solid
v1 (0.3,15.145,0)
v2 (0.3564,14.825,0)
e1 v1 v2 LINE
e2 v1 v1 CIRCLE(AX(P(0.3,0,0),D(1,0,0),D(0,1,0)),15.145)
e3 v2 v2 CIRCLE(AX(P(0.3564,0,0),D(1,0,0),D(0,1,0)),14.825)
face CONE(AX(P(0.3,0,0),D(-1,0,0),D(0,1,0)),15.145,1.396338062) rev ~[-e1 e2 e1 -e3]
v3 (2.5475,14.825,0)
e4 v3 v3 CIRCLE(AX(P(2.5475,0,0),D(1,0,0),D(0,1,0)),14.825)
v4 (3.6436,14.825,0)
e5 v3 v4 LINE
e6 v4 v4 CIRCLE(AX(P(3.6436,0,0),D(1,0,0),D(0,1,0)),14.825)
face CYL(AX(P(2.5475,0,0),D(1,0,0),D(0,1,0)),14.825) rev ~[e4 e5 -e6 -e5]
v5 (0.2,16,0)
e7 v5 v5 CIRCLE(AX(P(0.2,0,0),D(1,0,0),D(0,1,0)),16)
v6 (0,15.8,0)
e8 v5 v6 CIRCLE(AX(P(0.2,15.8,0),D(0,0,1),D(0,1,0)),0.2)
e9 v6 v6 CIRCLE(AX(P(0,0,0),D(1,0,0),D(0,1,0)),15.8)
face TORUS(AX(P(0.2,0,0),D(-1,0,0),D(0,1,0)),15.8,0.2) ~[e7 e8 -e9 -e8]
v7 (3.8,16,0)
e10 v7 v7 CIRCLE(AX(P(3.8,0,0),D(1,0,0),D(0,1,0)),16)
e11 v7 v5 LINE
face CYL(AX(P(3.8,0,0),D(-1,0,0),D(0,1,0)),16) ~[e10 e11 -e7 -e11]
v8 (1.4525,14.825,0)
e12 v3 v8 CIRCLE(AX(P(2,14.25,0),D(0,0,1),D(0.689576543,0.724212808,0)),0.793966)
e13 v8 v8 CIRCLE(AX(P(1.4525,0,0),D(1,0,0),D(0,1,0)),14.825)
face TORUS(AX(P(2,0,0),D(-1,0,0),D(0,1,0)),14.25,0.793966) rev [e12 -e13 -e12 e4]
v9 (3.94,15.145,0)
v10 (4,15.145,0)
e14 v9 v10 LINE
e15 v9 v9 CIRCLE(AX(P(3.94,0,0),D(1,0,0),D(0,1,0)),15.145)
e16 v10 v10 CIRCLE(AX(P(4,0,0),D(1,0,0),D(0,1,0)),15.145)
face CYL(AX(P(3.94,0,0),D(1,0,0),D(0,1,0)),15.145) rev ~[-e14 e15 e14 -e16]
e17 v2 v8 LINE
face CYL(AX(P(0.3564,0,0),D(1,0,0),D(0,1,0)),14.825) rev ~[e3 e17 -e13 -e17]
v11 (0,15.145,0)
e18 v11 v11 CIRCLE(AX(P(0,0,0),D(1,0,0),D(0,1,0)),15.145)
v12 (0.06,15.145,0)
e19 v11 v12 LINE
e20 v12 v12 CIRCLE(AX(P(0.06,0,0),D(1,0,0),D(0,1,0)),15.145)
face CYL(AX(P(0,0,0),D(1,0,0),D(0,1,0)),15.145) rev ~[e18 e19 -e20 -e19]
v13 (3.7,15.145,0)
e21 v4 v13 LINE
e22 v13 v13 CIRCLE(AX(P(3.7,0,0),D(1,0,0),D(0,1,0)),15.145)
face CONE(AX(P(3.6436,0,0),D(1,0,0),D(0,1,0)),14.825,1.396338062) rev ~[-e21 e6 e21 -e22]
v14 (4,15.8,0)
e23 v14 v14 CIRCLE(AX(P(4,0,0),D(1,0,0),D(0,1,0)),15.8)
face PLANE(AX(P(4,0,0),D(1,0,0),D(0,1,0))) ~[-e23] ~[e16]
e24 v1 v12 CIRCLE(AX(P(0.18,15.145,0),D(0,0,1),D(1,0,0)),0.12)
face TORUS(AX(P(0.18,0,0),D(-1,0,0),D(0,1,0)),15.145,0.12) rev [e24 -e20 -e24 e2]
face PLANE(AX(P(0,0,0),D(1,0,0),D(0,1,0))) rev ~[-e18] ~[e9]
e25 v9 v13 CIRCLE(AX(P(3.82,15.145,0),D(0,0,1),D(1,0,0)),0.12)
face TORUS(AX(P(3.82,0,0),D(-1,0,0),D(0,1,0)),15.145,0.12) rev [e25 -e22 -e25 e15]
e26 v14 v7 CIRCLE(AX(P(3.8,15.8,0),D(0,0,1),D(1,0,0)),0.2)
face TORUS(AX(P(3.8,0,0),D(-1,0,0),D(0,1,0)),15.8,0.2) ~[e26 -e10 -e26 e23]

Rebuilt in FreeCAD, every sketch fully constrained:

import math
import FreeCAD as App
import Part
import Sketcher
from FreeCAD import Vector

doc = App.newDocument("Part")
body = doc.addObject("PartDesign::Body", "Body")

# Sketch on XY plane
sketch1 = body.newObject("Sketcher::SketchObject", "Sketch")
sketch1.AttachmentSupport = (doc.getObject("XY_Plane"), [""])
sketch1.MapMode = "FlatFace"
sketch1.addGeometry(Part.LineSegment(Vector(0, 15.8, 0), Vector(0, 15.145, 0)), False)
sketch1.addGeometry(Part.LineSegment(Vector(0, 15.145, 0), Vector(0.06, 15.145, 0)), False)
sketch1.addGeometry(Part.ArcOfCircle(Part.Circle(Vector(0.18, 15.145, 0), Vector(0, 0, 1), 0.12), math.radians(0), math.radians(180)), False)
sketch1.addGeometry(Part.LineSegment(Vector(0.3, 15.145, 0), Vector(0.3564, 14.825, 0)), False)
sketch1.addGeometry(Part.LineSegment(Vector(0.3564, 14.825, 0), Vector(1.4525, 14.825, 0)), False)
sketch1.addGeometry(Part.ArcOfCircle(Part.Circle(Vector(2, 14.25, 0), Vector(0, 0, 1), 0.793966), math.radians(46.403402), math.radians(133.596598)), False)
sketch1.addGeometry(Part.LineSegment(Vector(2.5475, 14.825, 0), Vector(3.6436, 14.825, 0)), False)
sketch1.addGeometry(Part.LineSegment(Vector(3.6436, 14.825, 0), Vector(3.7, 15.145, 0)), False)
sketch1.addGeometry(Part.ArcOfCircle(Part.Circle(Vector(3.82, 15.145, 0), Vector(0, 0, 1), 0.12), math.radians(0), math.radians(180)), False)
sketch1.addGeometry(Part.LineSegment(Vector(3.94, 15.145, 0), Vector(4, 15.145, 0)), False)
sketch1.addGeometry(Part.LineSegment(Vector(4, 15.145, 0), Vector(4, 15.8, 0)), False)
sketch1.addGeometry(Part.ArcOfCircle(Part.Circle(Vector(3.8, 15.8, 0), Vector(0, 0, 1), 0.2), math.radians(0), math.radians(90)), False)
sketch1.addGeometry(Part.LineSegment(Vector(3.8, 16, 0), Vector(0.2, 16, 0)), False)
sketch1.addGeometry(Part.ArcOfCircle(Part.Circle(Vector(0.2, 15.8, 0), Vector(0, 0, 1), 0.2), math.radians(90), math.radians(180)), False)
sketch1.addConstraint(Sketcher.Constraint("Coincident", 0, 2, 1, 1))
sketch1.addConstraint(Sketcher.Constraint("Coincident", 1, 2, 2, 2))
sketch1.addConstraint(Sketcher.Constraint("Coincident", 2, 1, 3, 1))
sketch1.addConstraint(Sketcher.Constraint("Coincident", 3, 2, 4, 1))
sketch1.addConstraint(Sketcher.Constraint("Coincident", 4, 2, 5, 2))
sketch1.addConstraint(Sketcher.Constraint("Coincident", 5, 1, 6, 1))
sketch1.addConstraint(Sketcher.Constraint("Coincident", 6, 2, 7, 1))
sketch1.addConstraint(Sketcher.Constraint("Coincident", 7, 2, 8, 2))
sketch1.addConstraint(Sketcher.Constraint("Coincident", 8, 1, 9, 1))
sketch1.addConstraint(Sketcher.Constraint("Coincident", 9, 2, 10, 1))
sketch1.addConstraint(Sketcher.Constraint("Tangent", 10, 2, 11, 1))
sketch1.addConstraint(Sketcher.Constraint("Tangent", 11, 2, 12, 1))
sketch1.addConstraint(Sketcher.Constraint("Tangent", 12, 2, 13, 1))
sketch1.addConstraint(Sketcher.Constraint("Tangent", 13, 2, 0, 1))
sketch1.addConstraint(Sketcher.Constraint("Vertical", 0))
sketch1.addConstraint(Sketcher.Constraint("Horizontal", 1))
sketch1.addConstraint(Sketcher.Constraint("Horizontal", 4))
sketch1.addConstraint(Sketcher.Constraint("Horizontal", 6))
sketch1.addConstraint(Sketcher.Constraint("Horizontal", 9))
sketch1.addConstraint(Sketcher.Constraint("Vertical", 10))
sketch1.addConstraint(Sketcher.Constraint("Horizontal", 12))
sketch1.addConstraint(Sketcher.Constraint("Equal", 2, 8))
sketch1.addConstraint(Sketcher.Constraint("Equal", 11, 13))
sketch1.addConstraint(Sketcher.Constraint("PointOnObject", 0, 2, -2))
sketch1.addConstraint(Sketcher.Constraint("Horizontal", 2, 3, 8, 3))
sketch1.addConstraint(Sketcher.Constraint("Horizontal", 8, 3, 0, 2))
sketch1.addConstraint(Sketcher.Constraint("Horizontal", 1, 2, 2, 1))
sketch1.addConstraint(Sketcher.Constraint("Horizontal", 4, 2, 5, 1))
sketch1.addConstraint(Sketcher.Constraint("Horizontal", 2, 1, 7, 2))
sketch1.addConstraint(Sketcher.Constraint("Horizontal", 7, 2, 8, 1))
sketch1.addConstraint(Sketcher.Constraint("Equal", 4, 6))
sketch1.addConstraint(Sketcher.Constraint("Equal", 1, 9))
sketch1.addConstraint(Sketcher.Constraint("Equal", 3, 7))
sketch1.addConstraint(Sketcher.Constraint("Radius", 11, 0.2))
sketch1.addConstraint(Sketcher.Constraint("Radius", 2, 0.12))
sketch1.addConstraint(Sketcher.Constraint("DistanceX", 12, 2, 12, 1, 3.6))
sketch1.addConstraint(Sketcher.Constraint("DistanceY", -1, 1, 11, 2, 16.0))
sketch1.addConstraint(Sketcher.Constraint("Radius", 5, 0.794))
sketch1.addConstraint(Sketcher.Constraint("DistanceX", 1, 1, 1, 2, 0.06))
sketch1.addConstraint(Sketcher.Constraint("DistanceX", 4, 1, 4, 2, 1.096))
sketch1.addConstraint(Sketcher.Constraint("DistanceY", 0, 2, 0, 1, 0.655))
sketch1.addConstraint(Sketcher.Constraint("DistanceY", -1, 1, 5, 3, 14.25))
sketch1.addConstraint(Sketcher.Constraint("DistanceY", 3, 2, 2, 1, 0.32))
revolution = body.newObject("PartDesign::Revolution", "Revolution")
revolution.Profile = sketch1
revolution.ReferenceAxis = (sketch1, ["H_Axis"])
revolution.Angle = 360

doc.recompute()
